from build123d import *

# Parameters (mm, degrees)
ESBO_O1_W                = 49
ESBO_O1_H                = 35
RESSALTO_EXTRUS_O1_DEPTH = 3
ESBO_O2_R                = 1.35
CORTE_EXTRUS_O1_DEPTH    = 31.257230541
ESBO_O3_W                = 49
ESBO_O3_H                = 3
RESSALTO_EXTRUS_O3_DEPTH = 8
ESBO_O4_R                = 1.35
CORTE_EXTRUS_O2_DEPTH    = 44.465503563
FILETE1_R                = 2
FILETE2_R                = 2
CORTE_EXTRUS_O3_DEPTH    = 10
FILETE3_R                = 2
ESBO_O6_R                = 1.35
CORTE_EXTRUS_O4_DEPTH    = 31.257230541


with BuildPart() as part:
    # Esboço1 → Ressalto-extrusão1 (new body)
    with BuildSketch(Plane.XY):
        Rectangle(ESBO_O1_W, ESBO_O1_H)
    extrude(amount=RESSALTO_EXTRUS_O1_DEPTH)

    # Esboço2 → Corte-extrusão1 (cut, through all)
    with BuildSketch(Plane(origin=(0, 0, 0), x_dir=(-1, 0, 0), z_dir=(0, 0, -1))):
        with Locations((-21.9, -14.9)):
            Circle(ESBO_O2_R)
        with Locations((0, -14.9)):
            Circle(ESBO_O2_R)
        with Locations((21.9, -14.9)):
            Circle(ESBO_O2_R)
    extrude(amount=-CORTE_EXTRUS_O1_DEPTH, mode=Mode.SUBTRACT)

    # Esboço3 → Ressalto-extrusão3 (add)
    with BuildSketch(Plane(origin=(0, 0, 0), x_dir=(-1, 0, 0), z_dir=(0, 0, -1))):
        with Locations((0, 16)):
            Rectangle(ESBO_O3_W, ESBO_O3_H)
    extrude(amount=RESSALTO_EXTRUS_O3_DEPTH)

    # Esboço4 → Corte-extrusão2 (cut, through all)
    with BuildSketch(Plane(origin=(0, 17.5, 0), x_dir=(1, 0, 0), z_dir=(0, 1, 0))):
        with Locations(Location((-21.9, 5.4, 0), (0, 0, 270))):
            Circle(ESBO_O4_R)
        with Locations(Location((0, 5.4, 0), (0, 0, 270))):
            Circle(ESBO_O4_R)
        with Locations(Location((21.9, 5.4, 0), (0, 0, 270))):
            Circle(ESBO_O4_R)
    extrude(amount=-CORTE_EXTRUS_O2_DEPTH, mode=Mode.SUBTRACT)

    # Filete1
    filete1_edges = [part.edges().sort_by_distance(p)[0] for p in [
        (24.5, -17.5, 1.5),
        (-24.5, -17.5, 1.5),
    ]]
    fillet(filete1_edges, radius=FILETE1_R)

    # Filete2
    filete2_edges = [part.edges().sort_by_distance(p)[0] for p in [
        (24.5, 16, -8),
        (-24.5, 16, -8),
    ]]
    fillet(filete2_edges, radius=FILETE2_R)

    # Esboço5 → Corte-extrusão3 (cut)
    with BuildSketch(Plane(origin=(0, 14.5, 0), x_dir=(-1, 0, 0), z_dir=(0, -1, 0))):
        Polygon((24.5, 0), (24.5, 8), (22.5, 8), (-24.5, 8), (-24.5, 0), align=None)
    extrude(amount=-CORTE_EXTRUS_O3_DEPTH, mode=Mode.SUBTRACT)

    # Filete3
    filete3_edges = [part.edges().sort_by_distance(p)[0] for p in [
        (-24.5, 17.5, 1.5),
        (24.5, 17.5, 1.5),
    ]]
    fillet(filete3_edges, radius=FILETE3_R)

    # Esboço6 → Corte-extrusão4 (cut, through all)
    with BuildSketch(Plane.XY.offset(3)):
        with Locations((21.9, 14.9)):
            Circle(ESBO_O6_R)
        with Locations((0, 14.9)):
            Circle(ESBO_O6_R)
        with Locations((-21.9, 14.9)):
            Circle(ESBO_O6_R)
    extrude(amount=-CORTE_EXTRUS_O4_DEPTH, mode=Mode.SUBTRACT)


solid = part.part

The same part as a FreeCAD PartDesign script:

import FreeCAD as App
import Part
import Sketcher

V = App.Vector
Q = App.Units.Quantity


def edges_at(feature, points):
    """Names of the edges that pass closest to the given points."""
    edges = feature.Shape.Edges
    near = lambda p: min(range(len(edges)), key=lambda i: edges[i].distToShape(Part.Vertex(*p))[0])
    return sorted({f"Edge{near(p) + 1}" for p in points})

doc = App.newDocument("Part")
body = doc.addObject("PartDesign::Body", "Body")

# Sketch on XY plane
sketch1 = body.newObject("Sketcher::SketchObject", "Sketch")
sketch1.AttachmentSupport = (doc.getObject("XY_Plane"), [""])
sketch1.MapMode = "FlatFace"
sketch1.addGeometry(Part.LineSegment(V(-24, 18, 0), V(-24, -18, 0)), False)
sketch1.addGeometry(Part.LineSegment(V(-24, -18, 0), V(24, -18, 0)), False)
sketch1.addGeometry(Part.LineSegment(V(24, -18, 0), V(24, 18, 0)), False)
sketch1.addGeometry(Part.LineSegment(V(24, 18, 0), V(-24, 18, 0)), False)
sketch1.addConstraint(Sketcher.Constraint("Coincident", 0, 2, 1, 1))
sketch1.addConstraint(Sketcher.Constraint("Coincident", 1, 2, 2, 1))
sketch1.addConstraint(Sketcher.Constraint("Coincident", 2, 2, 3, 1))
sketch1.addConstraint(Sketcher.Constraint("Coincident", 3, 2, 0, 1))
sketch1.addConstraint(Sketcher.Constraint("Vertical", 0))
sketch1.addConstraint(Sketcher.Constraint("Horizontal", 1))
sketch1.addConstraint(Sketcher.Constraint("Vertical", 2))
sketch1.addConstraint(Sketcher.Constraint("Horizontal", 3))
sketch1.addConstraint(Sketcher.Constraint("Symmetric", 0, 2, 2, 2, -1, 1))
sketch1.addConstraint(Sketcher.Constraint("DistanceX", 1, 1, 1, 2, Q("49 mm")))
sketch1.addConstraint(Sketcher.Constraint("DistanceY", 0, 2, 0, 1, Q("35 mm")))
pad1 = body.newObject("PartDesign::Pad", "Pad")
pad1.Profile = sketch1
pad1.Length = 3

# Sketch on XY plane
sketch2 = body.newObject("Sketcher::SketchObject", "Sketch001")
sketch2.AttachmentSupport = (doc.getObject("XY_Plane"), [""])
sketch2.MapMode = "FlatFace"
sketch2.addGeometry(Part.Circle(V(21.9, -14.9, 0), V(0, 0, 1), 1.4), False)
sketch2.addGeometry(Part.Circle(V(0, -14.9, 0), V(0, 0, 1), 1.4), False)
sketch2.addGeometry(Part.Circle(V(-21.9, -14.9, 0), V(0, 0, 1), 1.4), False)
sketch2.addConstraint(Sketcher.Constraint("Equal", 0, 1))
sketch2.addConstraint(Sketcher.Constraint("Equal", 1, 2))
sketch2.addConstraint(Sketcher.Constraint("Symmetric", 0, 3, 2, 3, -2))
sketch2.addConstraint(Sketcher.Constraint("PointOnObject", 1, 3, -2))
sketch2.addConstraint(Sketcher.Constraint("Horizontal", 0, 3, 1, 3))
sketch2.addConstraint(Sketcher.Constraint("Diameter", 0, Q("2.7 mm")))
sketch2.addConstraint(Sketcher.Constraint("DistanceX", -1, 1, 0, 3, Q("21.9 mm")))
sketch2.addConstraint(Sketcher.Constraint("DistanceY", 0, 3, -1, 1, Q("14.9 mm")))
pocket1 = body.newObject("PartDesign::Pocket", "Pocket")
pocket1.Profile = sketch2
pocket1.Type = "ThroughAll"
pocket1.Reversed = True

# Sketch on XY plane
sketch3 = body.newObject("Sketcher::SketchObject", "Sketch002")
sketch3.AttachmentSupport = (doc.getObject("XY_Plane"), [""])
sketch3.MapMode = "FlatFace"
sketch3.addGeometry(Part.LineSegment(V(24.5, 17.5, 0), V(24.5, 14.5, 0)), False)
sketch3.addGeometry(Part.LineSegment(V(24.5, 14.5, 0), V(-24.5, 14.5, 0)), False)
sketch3.addGeometry(Part.LineSegment(V(-24.5, 14.5, 0), V(-24.5, 17.5, 0)), False)
sketch3.addGeometry(Part.LineSegment(V(-24.5, 17.5, 0), V(24.5, 17.5, 0)), False)
sketch3.addConstraint(Sketcher.Constraint("Coincident", 0, 2, 1, 1))
sketch3.addConstraint(Sketcher.Constraint("Coincident", 1, 2, 2, 1))
sketch3.addConstraint(Sketcher.Constraint("Coincident", 2, 2, 3, 1))
sketch3.addConstraint(Sketcher.Constraint("Coincident", 3, 2, 0, 1))
sketch3.addConstraint(Sketcher.Constraint("Vertical", 0))
sketch3.addConstraint(Sketcher.Constraint("Horizontal", 1))
sketch3.addConstraint(Sketcher.Constraint("Vertical", 2))
sketch3.addConstraint(Sketcher.Constraint("Horizontal", 3))
sketch3.addConstraint(Sketcher.Constraint("DistanceX", 1, 2, 1, 1, Q("49 mm")))
sketch3.addConstraint(Sketcher.Constraint("DistanceY", 0, 2, 0, 1, Q("3 mm")))
sketch3.addConstraint(Sketcher.Constraint("DistanceX", -1, 1, 0, 2, Q("24.5 mm")))
sketch3.addConstraint(Sketcher.Constraint("DistanceY", -1, 1, 0, 2, Q("14.5 mm")))
pad2 = body.newObject("PartDesign::Pad", "Pad001")
pad2.Profile = sketch3
pad2.Length = 8
pad2.Reversed = True

# Sketch on XZ plane
sketch4 = body.newObject("Sketcher::SketchObject", "Sketch003")
sketch4.AttachmentSupport = (doc.getObject("XZ_Plane"), [""])
sketch4.MapMode = "FlatFace"
sketch4.AttachmentOffset = App.Placement(V(0, 0, -17.5), App.Rotation())
sketch4.addGeometry(Part.Circle(V(-21.9, -5.4, 0), V(0, 0, 1), 1.4), False)
sketch4.addGeometry(Part.Circle(V(0, -5.4, 0), V(0, 0, 1), 1.4), False)
sketch4.addGeometry(Part.Circle(V(21.9, -5.4, 0), V(0, 0, 1), 1.4), False)
sketch4.addConstraint(Sketcher.Constraint("Equal", 0, 1))
sketch4.addConstraint(Sketcher.Constraint("Equal", 1, 2))
sketch4.addConstraint(Sketcher.Constraint("Symmetric", 0, 3, 2, 3, -2))
sketch4.addConstraint(Sketcher.Constraint("PointOnObject", 1, 3, -2))
sketch4.addConstraint(Sketcher.Constraint("Horizontal", 0, 3, 1, 3))
sketch4.addConstraint(Sketcher.Constraint("Diameter", 0, Q("2.7 mm")))
sketch4.addConstraint(Sketcher.Constraint("DistanceX", 0, 3, -1, 1, Q("21.9 mm")))
sketch4.addConstraint(Sketcher.Constraint("DistanceY", 0, 3, -1, 1, Q("5.4 mm")))
pocket2 = body.newObject("PartDesign::Pocket", "Pocket001")
pocket2.Profile = sketch4
pocket2.Type = "ThroughAll"
pocket2.Reversed = True
doc.recompute()

fillet = body.newObject("PartDesign::Fillet", "Fillet")
fillet.Base = (pocket2, edges_at(pocket2, [(24.5, -17.5, 1.5), (-24.5, -17.5, 1.5)]))
fillet.Radius = 2
doc.recompute()

fillet2 = body.newObject("PartDesign::Fillet", "Fillet001")
fillet2.Base = (fillet, edges_at(fillet, [(24.5, 16, -8), (-24.5, 16, -8)]))
fillet2.Radius = 2

# Sketch on XZ plane
sketch5 = body.newObject("Sketcher::SketchObject", "Sketch004")
sketch5.AttachmentSupport = (doc.getObject("XZ_Plane"), [""])
sketch5.MapMode = "FlatFace"
sketch5.AttachmentOffset = App.Placement(V(0, 0, -14.5), App.Rotation())
sketch5.addGeometry(Part.LineSegment(V(-24, 0, 0), V(-24, -8, 0)), False)
sketch5.addGeometry(Part.LineSegment(V(-24, -8, 0), V(24, -8, 0)), False)
sketch5.addGeometry(Part.LineSegment(V(24, -8, 0), V(24, 0, 0)), False)
sketch5.addGeometry(Part.LineSegment(V(24, 0, 0), V(-24, 0, 0)), False)
sketch5.addConstraint(Sketcher.Constraint("Coincident", 0, 2, 1, 1))
sketch5.addConstraint(Sketcher.Constraint("Coincident", 1, 2, 2, 1))
sketch5.addConstraint(Sketcher.Constraint("Coincident", 2, 2, 3, 1))
sketch5.addConstraint(Sketcher.Constraint("Coincident", 3, 2, 0, 1))
sketch5.addConstraint(Sketcher.Constraint("Vertical", 0))
sketch5.addConstraint(Sketcher.Constraint("Horizontal", 1))
sketch5.addConstraint(Sketcher.Constraint("Vertical", 2))
sketch5.addConstraint(Sketcher.Constraint("Horizontal", 3))
sketch5.addConstraint(Sketcher.Constraint("Symmetric", 2, 2, 3, 2, -1, 1))
sketch5.addConstraint(Sketcher.Constraint("DistanceX", 1, 1, 1, 2, Q("49 mm")))
sketch5.addConstraint(Sketcher.Constraint("DistanceY", 0, 2, 0, 1, Q("8 mm")))
pocket3 = body.newObject("PartDesign::Pocket", "Pocket002")
pocket3.Profile = sketch5
pocket3.Length = 10
doc.recompute()

fillet3 = body.newObject("PartDesign::Fillet", "Fillet002")
fillet3.Base = (pocket3, edges_at(pocket3, [(-24.5, 17.5, 1.5), (24.5, 17.5, 1.5)]))
fillet3.Radius = 2

# Sketch on XY plane
sketch6 = body.newObject("Sketcher::SketchObject", "Sketch005")
sketch6.AttachmentSupport = (doc.getObject("XY_Plane"), [""])
sketch6.MapMode = "FlatFace"
sketch6.AttachmentOffset = App.Placement(V(0, 0, 3), App.Rotation())
sketch6.addGeometry(Part.Circle(V(21.9, 14.9, 0), V(0, 0, 1), 1.4), False)
sketch6.addGeometry(Part.Circle(V(0, 14.9, 0), V(0, 0, 1), 1.4), False)
sketch6.addGeometry(Part.Circle(V(-21.9, 14.9, 0), V(0, 0, 1), 1.4), False)
sketch6.addConstraint(Sketcher.Constraint("Equal", 0, 1))
sketch6.addConstraint(Sketcher.Constraint("Equal", 1, 2))
sketch6.addConstraint(Sketcher.Constraint("Symmetric", 0, 3, 2, 3, -2))
sketch6.addConstraint(Sketcher.Constraint("PointOnObject", 1, 3, -2))
sketch6.addConstraint(Sketcher.Constraint("Horizontal", 0, 3, 1, 3))
sketch6.addConstraint(Sketcher.Constraint("Diameter", 0, Q("2.7 mm")))
sketch6.addConstraint(Sketcher.Constraint("DistanceX", -1, 1, 0, 3, Q("21.9 mm")))
sketch6.addConstraint(Sketcher.Constraint("DistanceY", -1, 1, 0, 3, Q("14.9 mm")))
pocket4 = body.newObject("PartDesign::Pocket", "Pocket003")
pocket4.Profile = sketch6
pocket4.Type = "ThroughAll"

doc.recompute()
